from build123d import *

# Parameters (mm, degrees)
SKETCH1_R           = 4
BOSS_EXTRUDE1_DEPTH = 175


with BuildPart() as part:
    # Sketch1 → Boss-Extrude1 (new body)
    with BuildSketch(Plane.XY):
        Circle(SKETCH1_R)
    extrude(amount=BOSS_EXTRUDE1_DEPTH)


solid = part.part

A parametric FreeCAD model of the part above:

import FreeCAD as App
import Part
import Sketcher
from FreeCAD import Vector

doc = App.newDocument("Part")
body = doc.addObject("PartDesign::Body", "Body")

sketch1 = body.newObject("Sketcher::SketchObject", "Sketch")
sketch1.AttachmentSupport = (doc.getObject("XY_Plane"), [""])
sketch1.MapMode = "FlatFace"
sketch1.addGeometry(Part.Circle(Vector(0, 0, 0), Vector(0, 0, 1), 4), False)
sketch1.addConstraint(Sketcher.Constraint("Coincident", 0, 3, -1, 1))
sketch1.addConstraint(Sketcher.Constraint("Diameter", 0, 8.0))
pad1 = body.newObject("PartDesign::Pad", "Pad")
pad1.Profile = sketch1
pad1.Length = 175

doc.recompute()
